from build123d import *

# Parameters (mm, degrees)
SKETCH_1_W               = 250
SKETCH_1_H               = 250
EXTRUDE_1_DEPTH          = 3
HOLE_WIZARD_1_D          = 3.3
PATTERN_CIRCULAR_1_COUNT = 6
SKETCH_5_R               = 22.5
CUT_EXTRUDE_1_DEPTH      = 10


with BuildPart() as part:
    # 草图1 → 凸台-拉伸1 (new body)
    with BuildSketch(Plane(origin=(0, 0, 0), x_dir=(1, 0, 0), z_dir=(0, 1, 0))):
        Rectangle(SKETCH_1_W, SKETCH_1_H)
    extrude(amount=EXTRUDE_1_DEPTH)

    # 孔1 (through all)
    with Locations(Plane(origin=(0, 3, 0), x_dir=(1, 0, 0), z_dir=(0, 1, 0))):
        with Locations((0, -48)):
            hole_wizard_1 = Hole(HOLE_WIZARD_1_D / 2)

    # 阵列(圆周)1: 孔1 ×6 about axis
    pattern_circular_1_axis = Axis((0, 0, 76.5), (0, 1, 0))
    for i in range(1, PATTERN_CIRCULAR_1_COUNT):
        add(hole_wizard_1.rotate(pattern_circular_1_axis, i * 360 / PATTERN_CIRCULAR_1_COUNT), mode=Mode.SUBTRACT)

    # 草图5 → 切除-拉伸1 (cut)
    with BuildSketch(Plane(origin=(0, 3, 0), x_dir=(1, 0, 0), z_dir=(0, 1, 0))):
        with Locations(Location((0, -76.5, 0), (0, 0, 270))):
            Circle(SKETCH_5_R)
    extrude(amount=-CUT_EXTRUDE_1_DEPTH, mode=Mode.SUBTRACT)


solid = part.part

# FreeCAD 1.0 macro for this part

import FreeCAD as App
import Part
import Sketcher

doc = App.newDocument("Part")
body = doc.addObject("PartDesign::Body", "Body")

# Sketch on XZ plane
sketch1 = doc.addObject("Sketcher::SketchObject", "Sketch")
body.addObject(sketch1)
sketch1.AttachmentSupport = (doc.XZ_Plane, [""])
sketch1.MapMode = "FlatFace"
sketch1.addGeometry(Part.LineSegment(App.Vector(-125, -125, 0), App.Vector(-125, 125, 0)), False)
sketch1.addGeometry(Part.LineSegment(App.Vector(-125, 125, 0), App.Vector(125, 125, 0)), False)
sketch1.addGeometry(Part.LineSegment(App.Vector(125, 125, 0), App.Vector(125, -125, 0)), False)
sketch1.addGeometry(Part.LineSegment(App.Vector(125, -125, 0), App.Vector(-125, -125, 0)), False)
sketch1.addConstraint(Sketcher.Constraint("Coincident", 0, 2, 1, 1))
sketch1.addConstraint(Sketcher.Constraint("Coincident", 1, 2, 2, 1))
sketch1.addConstraint(Sketcher.Constraint("Coincident", 2, 2, 3, 1))
sketch1.addConstraint(Sketcher.Constraint("Coincident", 3, 2, 0, 1))
sketch1.addConstraint(Sketcher.Constraint("Vertical", 0))
sketch1.addConstraint(Sketcher.Constraint("Horizontal", 1))
sketch1.addConstraint(Sketcher.Constraint("Vertical", 2))
sketch1.addConstraint(Sketcher.Constraint("Horizontal", 3))
sketch1.addConstraint(Sketcher.Constraint("Symmetric", 0, 2, 2, 2, -1, 1))
sketch1.addConstraint(Sketcher.Constraint("Equal", 3, 0))
sketch1.addConstraint(Sketcher.Constraint("DistanceX", 1, 1, 1, 2, 250.0))
pad1 = doc.addObject("PartDesign::Pad", "Pad")
body.addObject(pad1)
pad1.Profile = sketch1
pad1.Length = 3
pad1.Reversed = True

# Sketch on XZ plane
sketch2 = doc.addObject("Sketcher::SketchObject", "Sketch001")
body.addObject(sketch2)
sketch2.AttachmentSupport = (doc.XZ_Plane, [""])
sketch2.MapMode = "FlatFace"
sketch2.AttachmentOffset = App.Placement(App.Vector(0, 0, -3), App.Rotation())
sketch2.addGeometry(Part.Circle(App.Vector(0, 48, 0), App.Vector(0, 0, 1), 1.6), False)
sketch2.addConstraint(Sketcher.Constraint("PointOnObject", 0, 3, -2))
sketch2.addConstraint(Sketcher.Constraint("Diameter", 0, 3.3))
sketch2.addConstraint(Sketcher.Constraint("DistanceY", -1, 1, 0, 3, 48.0))
doc.recompute()
hole = doc.addObject("PartDesign::Hole", "Hole")
body.addObject(hole)
hole.Profile = sketch2
hole.ThreadType = "None"
hole.Diameter = 3.3
hole.DepthType = "ThroughAll"
hole.Reversed = True
doc.recompute()

datumline = doc.addObject("PartDesign::Line", "DatumLine")
body.addObject(datumline)
datumline.Placement = App.Placement(App.Vector(0, 0, 76.5), App.Rotation(App.Vector(0, 0, 1), App.Vector(0, 1, 0)))
polarpattern = doc.addObject("PartDesign::PolarPattern", "PolarPattern")
body.addObject(polarpattern)
polarpattern.Originals = [hole]
polarpattern.Axis = (datumline, [""])
polarpattern.Angle = 360
polarpattern.Occurrences = 6
body.Tip = polarpattern

# Sketch on XZ plane
sketch3 = doc.addObject("Sketcher::SketchObject", "Sketch002")
body.addObject(sketch3)
sketch3.AttachmentSupport = (doc.XZ_Plane, [""])
sketch3.MapMode = "FlatFace"
sketch3.AttachmentOffset = App.Placement(App.Vector(0, 0, -3), App.Rotation())
sketch3.addGeometry(Part.Circle(App.Vector(0, 76, 0), App.Vector(0, 0, 1), 22), False)
sketch3.addConstraint(Sketcher.Constraint("PointOnObject", 0, 3, -2))
sketch3.addConstraint(Sketcher.Constraint("Diameter", 0, 45.0))
sketch3.addConstraint(Sketcher.Constraint("DistanceY", -1, 1, 0, 3, 76.5))
pocket1 = doc.addObject("PartDesign::Pocket", "Pocket")
body.addObject(pocket1)
pocket1.Profile = sketch3
pocket1.Length = 10
pocket1.Reversed = True

doc.recompute()
